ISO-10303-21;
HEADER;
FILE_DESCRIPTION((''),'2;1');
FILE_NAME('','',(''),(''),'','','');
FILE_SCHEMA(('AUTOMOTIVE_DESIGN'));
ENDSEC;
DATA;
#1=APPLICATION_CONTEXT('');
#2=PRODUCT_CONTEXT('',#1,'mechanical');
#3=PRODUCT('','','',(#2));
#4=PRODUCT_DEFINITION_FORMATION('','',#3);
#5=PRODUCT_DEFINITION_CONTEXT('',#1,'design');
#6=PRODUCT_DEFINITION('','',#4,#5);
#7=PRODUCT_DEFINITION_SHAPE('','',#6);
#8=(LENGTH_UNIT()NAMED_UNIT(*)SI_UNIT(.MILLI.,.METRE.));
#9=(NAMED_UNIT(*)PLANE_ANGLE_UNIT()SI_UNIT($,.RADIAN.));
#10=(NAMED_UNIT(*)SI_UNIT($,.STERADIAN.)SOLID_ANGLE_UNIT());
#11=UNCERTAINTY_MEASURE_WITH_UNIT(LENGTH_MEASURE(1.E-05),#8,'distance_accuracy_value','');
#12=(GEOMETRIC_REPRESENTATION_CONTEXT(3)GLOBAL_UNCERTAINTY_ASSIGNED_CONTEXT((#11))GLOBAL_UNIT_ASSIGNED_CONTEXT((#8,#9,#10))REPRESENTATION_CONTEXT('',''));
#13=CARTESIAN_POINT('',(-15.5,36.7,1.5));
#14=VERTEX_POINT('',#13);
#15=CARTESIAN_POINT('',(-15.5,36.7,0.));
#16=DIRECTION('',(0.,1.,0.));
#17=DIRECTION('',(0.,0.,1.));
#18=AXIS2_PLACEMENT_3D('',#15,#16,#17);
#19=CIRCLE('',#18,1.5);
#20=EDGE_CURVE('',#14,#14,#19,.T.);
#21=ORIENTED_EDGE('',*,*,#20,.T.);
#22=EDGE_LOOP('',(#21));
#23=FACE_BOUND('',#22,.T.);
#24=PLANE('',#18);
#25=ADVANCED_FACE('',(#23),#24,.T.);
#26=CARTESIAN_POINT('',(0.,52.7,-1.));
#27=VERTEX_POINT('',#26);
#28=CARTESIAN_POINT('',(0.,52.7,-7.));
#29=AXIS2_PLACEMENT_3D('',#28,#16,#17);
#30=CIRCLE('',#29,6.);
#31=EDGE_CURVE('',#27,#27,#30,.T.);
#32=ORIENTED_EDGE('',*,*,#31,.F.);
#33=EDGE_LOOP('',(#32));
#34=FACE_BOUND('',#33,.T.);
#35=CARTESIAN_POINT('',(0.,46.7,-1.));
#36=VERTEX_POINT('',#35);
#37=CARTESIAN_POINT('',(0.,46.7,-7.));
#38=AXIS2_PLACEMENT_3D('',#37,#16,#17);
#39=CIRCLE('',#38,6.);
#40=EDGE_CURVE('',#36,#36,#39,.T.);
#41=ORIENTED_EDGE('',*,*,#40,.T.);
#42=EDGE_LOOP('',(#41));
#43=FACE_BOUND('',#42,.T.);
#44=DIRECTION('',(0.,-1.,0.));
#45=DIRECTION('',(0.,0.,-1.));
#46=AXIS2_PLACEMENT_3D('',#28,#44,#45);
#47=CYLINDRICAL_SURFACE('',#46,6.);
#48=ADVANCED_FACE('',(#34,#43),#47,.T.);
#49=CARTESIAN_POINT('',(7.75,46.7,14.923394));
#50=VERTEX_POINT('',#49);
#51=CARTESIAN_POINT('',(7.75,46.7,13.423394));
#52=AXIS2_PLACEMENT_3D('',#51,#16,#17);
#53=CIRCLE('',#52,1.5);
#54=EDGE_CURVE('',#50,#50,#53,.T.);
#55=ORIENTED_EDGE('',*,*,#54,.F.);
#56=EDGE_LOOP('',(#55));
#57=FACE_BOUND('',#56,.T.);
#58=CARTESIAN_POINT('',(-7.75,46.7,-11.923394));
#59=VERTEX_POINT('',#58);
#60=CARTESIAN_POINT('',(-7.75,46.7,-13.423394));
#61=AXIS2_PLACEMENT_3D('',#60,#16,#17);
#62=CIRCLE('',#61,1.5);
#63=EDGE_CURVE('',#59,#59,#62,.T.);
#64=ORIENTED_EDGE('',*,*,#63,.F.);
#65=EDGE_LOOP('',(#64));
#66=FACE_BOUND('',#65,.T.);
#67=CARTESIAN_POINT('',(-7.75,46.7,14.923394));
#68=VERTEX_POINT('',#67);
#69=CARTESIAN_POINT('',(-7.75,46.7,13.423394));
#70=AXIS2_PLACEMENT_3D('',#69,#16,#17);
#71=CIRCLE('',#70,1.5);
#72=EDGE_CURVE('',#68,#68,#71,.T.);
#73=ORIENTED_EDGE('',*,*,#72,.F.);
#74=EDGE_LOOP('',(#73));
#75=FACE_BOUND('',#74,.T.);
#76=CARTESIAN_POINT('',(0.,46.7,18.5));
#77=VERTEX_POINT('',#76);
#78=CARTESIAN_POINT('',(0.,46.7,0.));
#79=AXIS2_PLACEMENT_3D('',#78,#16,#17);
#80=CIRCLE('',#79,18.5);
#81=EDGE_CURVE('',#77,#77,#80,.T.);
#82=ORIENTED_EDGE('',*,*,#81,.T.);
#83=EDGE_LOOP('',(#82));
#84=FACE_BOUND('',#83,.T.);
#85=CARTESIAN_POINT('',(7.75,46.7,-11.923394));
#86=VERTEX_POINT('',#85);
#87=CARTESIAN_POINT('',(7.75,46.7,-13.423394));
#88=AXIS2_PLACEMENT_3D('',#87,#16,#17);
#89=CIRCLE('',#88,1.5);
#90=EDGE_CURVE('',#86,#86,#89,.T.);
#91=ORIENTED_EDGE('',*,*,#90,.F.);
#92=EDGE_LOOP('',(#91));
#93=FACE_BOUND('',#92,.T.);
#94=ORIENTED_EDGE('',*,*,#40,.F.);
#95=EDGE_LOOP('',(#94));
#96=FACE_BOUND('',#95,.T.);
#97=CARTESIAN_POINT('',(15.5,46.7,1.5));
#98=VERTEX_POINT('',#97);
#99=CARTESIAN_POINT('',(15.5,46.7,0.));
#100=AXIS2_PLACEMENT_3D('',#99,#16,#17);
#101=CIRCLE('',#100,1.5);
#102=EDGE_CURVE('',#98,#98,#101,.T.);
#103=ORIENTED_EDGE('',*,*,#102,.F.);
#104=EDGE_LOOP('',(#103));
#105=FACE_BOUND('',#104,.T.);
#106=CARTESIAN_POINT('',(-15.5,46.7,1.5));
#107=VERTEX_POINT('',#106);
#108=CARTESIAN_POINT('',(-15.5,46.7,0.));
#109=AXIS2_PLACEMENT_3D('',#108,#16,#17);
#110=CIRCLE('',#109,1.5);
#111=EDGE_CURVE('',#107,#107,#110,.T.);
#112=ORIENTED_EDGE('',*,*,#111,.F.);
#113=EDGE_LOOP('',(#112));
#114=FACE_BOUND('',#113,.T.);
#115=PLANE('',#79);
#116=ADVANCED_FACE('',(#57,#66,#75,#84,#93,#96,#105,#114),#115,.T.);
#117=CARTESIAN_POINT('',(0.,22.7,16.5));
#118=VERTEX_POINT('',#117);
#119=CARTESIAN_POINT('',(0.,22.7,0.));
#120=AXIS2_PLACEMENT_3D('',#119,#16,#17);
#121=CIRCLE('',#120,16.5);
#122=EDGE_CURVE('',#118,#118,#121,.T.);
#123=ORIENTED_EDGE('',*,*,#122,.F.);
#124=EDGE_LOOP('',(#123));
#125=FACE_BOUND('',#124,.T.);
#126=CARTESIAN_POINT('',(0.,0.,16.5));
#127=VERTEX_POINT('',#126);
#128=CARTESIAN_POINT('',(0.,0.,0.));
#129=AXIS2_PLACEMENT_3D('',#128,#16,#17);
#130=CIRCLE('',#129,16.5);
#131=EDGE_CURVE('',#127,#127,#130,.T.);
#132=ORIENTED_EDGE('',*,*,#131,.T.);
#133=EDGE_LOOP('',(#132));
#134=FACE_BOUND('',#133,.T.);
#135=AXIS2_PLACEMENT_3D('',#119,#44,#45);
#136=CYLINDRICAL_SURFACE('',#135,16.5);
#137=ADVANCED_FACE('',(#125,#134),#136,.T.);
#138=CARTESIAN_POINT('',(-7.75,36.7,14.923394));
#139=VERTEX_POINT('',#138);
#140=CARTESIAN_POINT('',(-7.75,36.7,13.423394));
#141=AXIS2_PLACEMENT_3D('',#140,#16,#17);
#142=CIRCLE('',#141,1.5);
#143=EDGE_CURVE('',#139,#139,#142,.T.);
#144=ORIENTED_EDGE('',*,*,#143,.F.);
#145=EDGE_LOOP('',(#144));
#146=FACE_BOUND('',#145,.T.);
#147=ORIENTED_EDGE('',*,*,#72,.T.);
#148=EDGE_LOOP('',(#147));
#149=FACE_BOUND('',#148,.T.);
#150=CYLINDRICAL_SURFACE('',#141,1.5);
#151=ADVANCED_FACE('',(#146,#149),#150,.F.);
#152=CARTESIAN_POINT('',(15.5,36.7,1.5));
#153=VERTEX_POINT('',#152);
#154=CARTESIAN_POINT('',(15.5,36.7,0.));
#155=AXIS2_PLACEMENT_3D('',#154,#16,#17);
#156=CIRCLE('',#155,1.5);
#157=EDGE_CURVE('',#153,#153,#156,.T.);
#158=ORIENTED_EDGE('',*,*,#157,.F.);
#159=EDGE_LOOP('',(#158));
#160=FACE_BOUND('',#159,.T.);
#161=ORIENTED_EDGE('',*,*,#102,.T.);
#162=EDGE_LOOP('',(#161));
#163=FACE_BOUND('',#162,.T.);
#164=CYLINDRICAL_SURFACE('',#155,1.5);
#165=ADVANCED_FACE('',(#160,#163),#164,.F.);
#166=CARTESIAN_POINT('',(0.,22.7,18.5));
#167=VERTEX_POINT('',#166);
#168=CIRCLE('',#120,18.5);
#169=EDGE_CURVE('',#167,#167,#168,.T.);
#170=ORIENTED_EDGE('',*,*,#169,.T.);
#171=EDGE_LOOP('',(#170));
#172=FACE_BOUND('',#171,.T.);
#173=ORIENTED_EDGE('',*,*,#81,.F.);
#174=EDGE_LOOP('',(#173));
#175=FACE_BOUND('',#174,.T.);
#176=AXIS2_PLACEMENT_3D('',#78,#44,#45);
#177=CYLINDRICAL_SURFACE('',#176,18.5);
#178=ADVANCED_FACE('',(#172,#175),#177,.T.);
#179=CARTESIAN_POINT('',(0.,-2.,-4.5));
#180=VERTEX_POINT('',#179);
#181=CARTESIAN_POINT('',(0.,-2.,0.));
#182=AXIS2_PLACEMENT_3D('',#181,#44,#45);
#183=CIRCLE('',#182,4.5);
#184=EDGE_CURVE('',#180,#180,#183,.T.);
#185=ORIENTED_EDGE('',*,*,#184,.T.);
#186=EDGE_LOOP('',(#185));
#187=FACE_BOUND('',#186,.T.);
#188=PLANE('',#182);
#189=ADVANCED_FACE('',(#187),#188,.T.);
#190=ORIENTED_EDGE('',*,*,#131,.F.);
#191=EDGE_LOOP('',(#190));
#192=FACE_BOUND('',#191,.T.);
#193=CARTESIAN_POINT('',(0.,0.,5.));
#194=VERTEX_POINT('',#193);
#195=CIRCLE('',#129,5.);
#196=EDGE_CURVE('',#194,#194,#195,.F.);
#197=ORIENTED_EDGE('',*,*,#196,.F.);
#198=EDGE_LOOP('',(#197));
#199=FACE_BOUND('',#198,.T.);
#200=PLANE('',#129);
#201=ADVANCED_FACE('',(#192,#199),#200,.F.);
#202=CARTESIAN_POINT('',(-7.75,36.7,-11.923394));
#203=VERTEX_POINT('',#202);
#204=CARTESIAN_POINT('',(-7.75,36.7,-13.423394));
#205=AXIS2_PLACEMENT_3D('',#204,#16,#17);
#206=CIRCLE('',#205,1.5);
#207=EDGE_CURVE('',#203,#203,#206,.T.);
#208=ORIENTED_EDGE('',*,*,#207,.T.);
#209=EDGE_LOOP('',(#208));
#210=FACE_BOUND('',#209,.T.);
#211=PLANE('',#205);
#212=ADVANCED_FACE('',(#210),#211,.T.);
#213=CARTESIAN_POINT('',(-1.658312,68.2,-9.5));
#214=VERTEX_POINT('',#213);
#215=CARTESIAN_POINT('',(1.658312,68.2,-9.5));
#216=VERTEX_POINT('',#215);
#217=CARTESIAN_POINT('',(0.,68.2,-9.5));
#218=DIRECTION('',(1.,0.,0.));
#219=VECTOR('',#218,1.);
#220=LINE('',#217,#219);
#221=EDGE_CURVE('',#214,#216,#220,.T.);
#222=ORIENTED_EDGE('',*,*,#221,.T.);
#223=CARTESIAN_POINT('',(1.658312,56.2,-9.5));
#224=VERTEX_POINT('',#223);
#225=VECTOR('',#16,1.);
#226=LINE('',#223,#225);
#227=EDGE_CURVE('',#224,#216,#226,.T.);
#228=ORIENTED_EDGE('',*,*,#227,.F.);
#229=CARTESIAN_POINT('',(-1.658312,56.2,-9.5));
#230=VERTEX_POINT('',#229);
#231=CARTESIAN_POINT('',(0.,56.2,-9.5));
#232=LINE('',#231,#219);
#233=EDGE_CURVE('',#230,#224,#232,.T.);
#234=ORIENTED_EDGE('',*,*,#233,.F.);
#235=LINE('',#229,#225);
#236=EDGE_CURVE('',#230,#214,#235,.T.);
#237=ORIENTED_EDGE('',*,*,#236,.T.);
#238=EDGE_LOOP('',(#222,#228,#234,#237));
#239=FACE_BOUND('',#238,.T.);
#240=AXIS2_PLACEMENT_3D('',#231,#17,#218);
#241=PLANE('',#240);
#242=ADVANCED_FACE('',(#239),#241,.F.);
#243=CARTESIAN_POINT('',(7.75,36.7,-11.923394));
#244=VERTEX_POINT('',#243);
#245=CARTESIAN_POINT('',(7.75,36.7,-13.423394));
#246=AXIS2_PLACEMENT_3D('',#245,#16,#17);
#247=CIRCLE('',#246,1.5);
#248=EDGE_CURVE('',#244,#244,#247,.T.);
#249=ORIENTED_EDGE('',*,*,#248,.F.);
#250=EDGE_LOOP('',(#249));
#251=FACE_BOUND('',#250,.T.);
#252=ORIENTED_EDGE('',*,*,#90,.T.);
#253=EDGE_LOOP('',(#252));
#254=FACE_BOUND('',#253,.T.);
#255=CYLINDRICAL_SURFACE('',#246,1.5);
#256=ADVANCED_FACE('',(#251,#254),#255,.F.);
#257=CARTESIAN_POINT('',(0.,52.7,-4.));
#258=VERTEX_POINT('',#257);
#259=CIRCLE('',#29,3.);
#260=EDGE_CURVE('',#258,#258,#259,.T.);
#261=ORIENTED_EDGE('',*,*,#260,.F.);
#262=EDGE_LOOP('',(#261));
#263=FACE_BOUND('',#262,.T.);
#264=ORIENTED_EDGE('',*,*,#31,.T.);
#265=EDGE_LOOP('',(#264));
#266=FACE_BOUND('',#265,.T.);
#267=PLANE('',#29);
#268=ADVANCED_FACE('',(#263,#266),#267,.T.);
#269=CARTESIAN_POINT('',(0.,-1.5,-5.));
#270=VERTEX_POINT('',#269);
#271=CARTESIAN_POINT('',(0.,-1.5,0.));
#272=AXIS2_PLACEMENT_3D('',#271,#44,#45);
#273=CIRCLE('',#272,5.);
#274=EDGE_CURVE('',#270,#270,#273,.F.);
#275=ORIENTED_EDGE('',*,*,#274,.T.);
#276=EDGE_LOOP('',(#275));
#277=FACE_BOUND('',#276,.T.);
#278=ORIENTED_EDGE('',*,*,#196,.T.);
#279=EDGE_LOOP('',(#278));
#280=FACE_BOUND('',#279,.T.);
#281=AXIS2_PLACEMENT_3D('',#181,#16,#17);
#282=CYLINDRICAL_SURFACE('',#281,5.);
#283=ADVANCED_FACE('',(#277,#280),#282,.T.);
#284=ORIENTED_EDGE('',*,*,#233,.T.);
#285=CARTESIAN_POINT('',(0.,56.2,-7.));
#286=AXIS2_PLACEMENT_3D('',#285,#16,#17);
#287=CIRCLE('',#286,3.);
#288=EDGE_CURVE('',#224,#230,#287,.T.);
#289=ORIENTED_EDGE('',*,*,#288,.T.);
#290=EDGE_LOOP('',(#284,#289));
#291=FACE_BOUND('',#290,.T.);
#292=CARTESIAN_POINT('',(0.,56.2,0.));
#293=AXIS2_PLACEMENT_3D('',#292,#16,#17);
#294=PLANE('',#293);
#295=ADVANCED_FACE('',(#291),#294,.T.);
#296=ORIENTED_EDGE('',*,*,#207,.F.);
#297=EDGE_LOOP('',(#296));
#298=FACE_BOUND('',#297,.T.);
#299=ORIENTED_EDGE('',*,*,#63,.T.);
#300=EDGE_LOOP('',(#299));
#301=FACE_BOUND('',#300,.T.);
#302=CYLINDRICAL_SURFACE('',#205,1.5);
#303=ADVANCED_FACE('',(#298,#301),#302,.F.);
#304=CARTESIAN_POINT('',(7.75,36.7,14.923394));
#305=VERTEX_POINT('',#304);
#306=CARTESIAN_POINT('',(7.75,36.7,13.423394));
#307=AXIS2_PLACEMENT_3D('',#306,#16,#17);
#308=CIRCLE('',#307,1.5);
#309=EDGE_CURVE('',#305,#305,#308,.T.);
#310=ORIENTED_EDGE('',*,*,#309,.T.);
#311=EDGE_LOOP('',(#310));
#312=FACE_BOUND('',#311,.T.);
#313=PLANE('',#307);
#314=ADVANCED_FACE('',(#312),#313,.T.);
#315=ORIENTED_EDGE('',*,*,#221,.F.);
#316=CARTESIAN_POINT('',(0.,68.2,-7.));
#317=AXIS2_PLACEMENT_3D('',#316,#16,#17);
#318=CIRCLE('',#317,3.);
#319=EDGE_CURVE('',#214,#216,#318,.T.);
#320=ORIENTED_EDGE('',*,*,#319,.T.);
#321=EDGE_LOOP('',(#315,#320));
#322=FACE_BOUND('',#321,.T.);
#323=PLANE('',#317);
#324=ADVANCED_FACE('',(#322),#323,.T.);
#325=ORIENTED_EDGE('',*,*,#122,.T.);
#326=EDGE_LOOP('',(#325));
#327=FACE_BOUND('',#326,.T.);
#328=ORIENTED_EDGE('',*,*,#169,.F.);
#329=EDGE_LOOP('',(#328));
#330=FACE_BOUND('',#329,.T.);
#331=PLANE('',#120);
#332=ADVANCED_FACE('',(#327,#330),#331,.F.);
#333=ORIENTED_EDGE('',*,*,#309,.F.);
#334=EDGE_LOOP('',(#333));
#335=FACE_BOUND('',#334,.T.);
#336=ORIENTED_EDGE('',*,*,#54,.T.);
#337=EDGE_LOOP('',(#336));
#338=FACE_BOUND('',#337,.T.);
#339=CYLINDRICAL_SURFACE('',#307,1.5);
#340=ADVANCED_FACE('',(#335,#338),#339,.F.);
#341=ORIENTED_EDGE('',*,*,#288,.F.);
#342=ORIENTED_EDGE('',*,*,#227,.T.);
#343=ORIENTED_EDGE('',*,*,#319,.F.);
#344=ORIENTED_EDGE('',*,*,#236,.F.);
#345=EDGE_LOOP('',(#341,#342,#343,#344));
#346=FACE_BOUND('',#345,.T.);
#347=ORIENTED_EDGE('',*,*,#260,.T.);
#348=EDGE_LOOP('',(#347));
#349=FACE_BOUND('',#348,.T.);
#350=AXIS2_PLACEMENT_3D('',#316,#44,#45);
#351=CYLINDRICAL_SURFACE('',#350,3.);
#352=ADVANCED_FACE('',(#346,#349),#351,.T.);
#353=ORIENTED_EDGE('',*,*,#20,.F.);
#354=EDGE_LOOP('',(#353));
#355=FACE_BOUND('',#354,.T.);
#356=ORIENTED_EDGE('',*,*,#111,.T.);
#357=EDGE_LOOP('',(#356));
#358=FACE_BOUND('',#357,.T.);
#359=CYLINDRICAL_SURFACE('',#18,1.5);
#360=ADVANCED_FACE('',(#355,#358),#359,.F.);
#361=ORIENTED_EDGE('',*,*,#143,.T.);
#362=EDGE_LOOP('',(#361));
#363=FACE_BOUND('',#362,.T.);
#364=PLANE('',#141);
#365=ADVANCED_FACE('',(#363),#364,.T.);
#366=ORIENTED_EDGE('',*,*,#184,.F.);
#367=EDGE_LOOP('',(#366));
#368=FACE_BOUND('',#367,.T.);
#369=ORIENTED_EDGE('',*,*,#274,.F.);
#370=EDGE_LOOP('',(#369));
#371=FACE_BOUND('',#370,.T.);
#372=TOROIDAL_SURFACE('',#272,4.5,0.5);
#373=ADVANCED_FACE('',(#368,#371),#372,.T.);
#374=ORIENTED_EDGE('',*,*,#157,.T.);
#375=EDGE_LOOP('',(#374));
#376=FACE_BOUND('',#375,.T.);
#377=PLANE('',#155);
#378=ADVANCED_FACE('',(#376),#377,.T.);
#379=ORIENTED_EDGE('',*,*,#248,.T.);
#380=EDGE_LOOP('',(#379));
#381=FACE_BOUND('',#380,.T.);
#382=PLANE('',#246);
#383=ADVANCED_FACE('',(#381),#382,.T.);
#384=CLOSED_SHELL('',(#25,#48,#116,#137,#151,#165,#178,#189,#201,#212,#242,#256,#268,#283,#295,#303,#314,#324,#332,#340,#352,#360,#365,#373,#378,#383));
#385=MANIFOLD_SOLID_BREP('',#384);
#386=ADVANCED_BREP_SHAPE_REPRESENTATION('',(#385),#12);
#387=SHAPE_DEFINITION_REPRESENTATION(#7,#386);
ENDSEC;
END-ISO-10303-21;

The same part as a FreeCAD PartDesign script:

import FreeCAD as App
import Part
import Sketcher

V = App.Vector


def edges_at(feature, points):
    """Names of the edges that pass closest to the given points."""
    edges = feature.Shape.Edges
    near = lambda p: min(range(len(edges)), key=lambda i: edges[i].distToShape(Part.Vertex(*p))[0])
    return sorted({f"Edge{near(p) + 1}" for p in points})


def add_polygon(sketch, points):
    """Adds a closed chain of lines whose ends are joined by coincident constraints."""
    first, n = sketch.GeometryCount, len(points)
    for a, b in zip(points, points[1:] + points[:1]):
        sketch.addGeometry(Part.LineSegment(App.Vector(*a, 0), App.Vector(*b, 0)), False)
    for i in range(n):
        sketch.addConstraint(Sketcher.Constraint("Coincident", first + i, 2, first + (i + 1) % n, 1))

doc = App.newDocument("Part")
body = doc.addObject("PartDesign::Body", "Body")

sketch1 = doc.addObject("Sketcher::SketchObject", "Sketch")
body.addObject(sketch1)
sketch1.AttachmentSupport = (doc.XZ_Plane, [""])
sketch1.MapMode = "FlatFace"
sketch1.addGeometry(Part.Circle(V(0, 0, 0), V(0, 0, 1), 16.5), False)
sketch1.addConstraint([
    Sketcher.Constraint("Coincident", 0, 3, -1, 1),
    Sketcher.Constraint("Diameter", 0, 33.0),
])
pad1 = doc.addObject("PartDesign::Pad", "Pad")
body.addObject(pad1)
pad1.Profile = sketch1
pad1.Length = 22.7
pad1.Reversed = True

sketch2 = doc.addObject("Sketcher::SketchObject", "Sketch001")
body.addObject(sketch2)
sketch2.AttachmentSupport = (doc.XZ_Plane, [""])
sketch2.MapMode = "FlatFace"
sketch2.AttachmentOffset = App.Placement(V(0, 0, -22.7), App.Rotation())
sketch2.addGeometry(Part.Circle(V(0, 0, 0), V(0, 0, 1), 18.5), False)
sketch2.addConstraint([
    Sketcher.Constraint("Coincident", 0, 3, -1, 1),
    Sketcher.Constraint("Diameter", 0, 37.0),
])
pad2 = doc.addObject("PartDesign::Pad", "Pad001")
body.addObject(pad2)
pad2.Profile = sketch2
pad2.Length = 24
pad2.Reversed = True

sketch3 = doc.addObject("Sketcher::SketchObject", "Sketch002")
body.addObject(sketch3)
sketch3.AttachmentSupport = (doc.XZ_Plane, [""])
sketch3.MapMode = "FlatFace"
sketch3.AttachmentOffset = App.Placement(V(0, 0, -46.7), App.Rotation())
sketch3.addGeometry(Part.Circle(V(0, -7, 0), V(0, 0, 1), 6), False)
sketch3.addConstraint([
    Sketcher.Constraint("PointOnObject", 0, 3, -2),
    Sketcher.Constraint("Diameter", 0, 12.0),
    Sketcher.Constraint("DistanceY", 0, 3, -1, 1, 7.0),
])
pad3 = doc.addObject("PartDesign::Pad", "Pad002")
body.addObject(pad3)
pad3.Profile = sketch3
pad3.Length = 6
pad3.Reversed = True

sketch4 = doc.addObject("Sketcher::SketchObject", "Sketch003")
body.addObject(sketch4)
sketch4.AttachmentSupport = (doc.XZ_Plane, [""])
sketch4.MapMode = "FlatFace"
sketch4.AttachmentOffset = App.Placement(V(0, 0, -52.7), App.Rotation())
sketch4.addGeometry(Part.Circle(V(0, -7, 0), V(0, 0, 1), 3), False)
sketch4.addConstraint([
    Sketcher.Constraint("PointOnObject", 0, 3, -2),
    Sketcher.Constraint("Diameter", 0, 6.0),
    Sketcher.Constraint("DistanceY", 0, 3, -1, 1, 7.0),
])
pad4 = doc.addObject("PartDesign::Pad", "Pad003")
body.addObject(pad4)
pad4.Profile = sketch4
pad4.Length = 15.5
pad4.Reversed = True

sketch5 = doc.addObject("Sketcher::SketchObject", "Sketch004")
body.addObject(sketch5)
sketch5.AttachmentSupport = (doc.XZ_Plane, [""])
sketch5.MapMode = "FlatFace"
sketch5.AttachmentOffset = App.Placement(V(0, 0, -68.2), App.Rotation())
add_polygon(sketch5, [(-80.66143, -9.5), (80.66143, -9.5), (80.66143, -167.506235), (-80.66143, -167.506235)])
sketch5.addConstraint([
    Sketcher.Constraint("Horizontal", 0),
    Sketcher.Constraint("Vertical", 1),
    Sketcher.Constraint("Horizontal", 2),
    Sketcher.Constraint("Vertical", 3),
    Sketcher.Constraint("DistanceY", 0, 2, -1, 1, 9.5),
    Sketcher.Constraint("DistanceX", 0, 1, 0, 2, 161.32286),
    Sketcher.Constraint("DistanceY", 1, 2, 1, 1, 158.006235),
    Sketcher.Constraint("DistanceX", -1, 1, 0, 2, 80.66143),
])
pocket1 = doc.addObject("PartDesign::Pocket", "Pocket")
body.addObject(pocket1)
pocket1.Profile = sketch5
pocket1.Length = 12
pocket1.Reversed = True

sketch6 = doc.addObject("Sketcher::SketchObject", "Sketch005")
body.addObject(sketch6)
sketch6.AttachmentSupport = (doc.XZ_Plane, [""])
sketch6.MapMode = "FlatFace"
sketch6.AttachmentOffset = App.Placement(V(0, 0, -46.7), App.Rotation())
sketch6.addGeometry([
    Part.Circle(V(15.5, 0, 0), V(0, 0, 1), 1.5),
    Part.Circle(V(7.75, 13.423394, 0), V(0, 0, 1), 1.5),
    Part.Circle(V(-7.75, 13.423394, 0), V(0, 0, 1), 1.5),
    Part.Circle(V(-15.5, 0, 0), V(0, 0, 1), 1.5),
    Part.Circle(V(-7.75, -13.423394, 0), V(0, 0, 1), 1.5),
    Part.Circle(V(7.75, -13.423394, 0), V(0, 0, 1), 1.5),
], False)
sketch6.addConstraint([
    Sketcher.Constraint("Equal", 0, 1),
    Sketcher.Constraint("Equal", 1, 2),
    Sketcher.Constraint("Equal", 2, 3),
    Sketcher.Constraint("Equal", 3, 4),
    Sketcher.Constraint("Equal", 4, 5),
    Sketcher.Constraint("Symmetric", 0, 3, 3, 3, -1, 1),
    Sketcher.Constraint("Symmetric", 1, 3, 4, 3, -1, 1),
    Sketcher.Constraint("Symmetric", 2, 3, 5, 3, -1, 1),
    Sketcher.Constraint("Symmetric", 1, 3, 2, 3, -2),
    Sketcher.Constraint("PointOnObject", 0, 3, -1),
    Sketcher.Constraint("Diameter", 0, 3.0),
    Sketcher.Constraint("DistanceX", 3, 3, 0, 3, 31.0),
    Sketcher.Constraint("DistanceX", 2, 3, 1, 3, 15.5),
    Sketcher.Constraint("DistanceY", -1, 1, 1, 3, 13.423394),
])
pocket2 = doc.addObject("PartDesign::Pocket", "Pocket001")
body.addObject(pocket2)
pocket2.Profile = sketch6
pocket2.Length = 10
pocket2.Reversed = True

sketch7 = doc.addObject("Sketcher::SketchObject", "Sketch006")
body.addObject(sketch7)
sketch7.AttachmentSupport = (doc.XZ_Plane, [""])
sketch7.MapMode = "FlatFace"
sketch7.addGeometry(Part.Circle(V(0, 0, 0), V(0, 0, 1), 5), False)
sketch7.addConstraint([
    Sketcher.Constraint("Coincident", 0, 3, -1, 1),
    Sketcher.Constraint("Diameter", 0, 10.0),
])
pad5 = doc.addObject("PartDesign::Pad", "Pad004")
body.addObject(pad5)
pad5.Profile = sketch7
pad5.Length = 2
doc.recompute()

fillet = doc.addObject("PartDesign::Fillet", "Fillet")
body.addObject(fillet)
fillet.Base = (pad5, edges_at(pad5, [(0, -2, -5)]))
fillet.Radius = 0.5

doc.recompute()
